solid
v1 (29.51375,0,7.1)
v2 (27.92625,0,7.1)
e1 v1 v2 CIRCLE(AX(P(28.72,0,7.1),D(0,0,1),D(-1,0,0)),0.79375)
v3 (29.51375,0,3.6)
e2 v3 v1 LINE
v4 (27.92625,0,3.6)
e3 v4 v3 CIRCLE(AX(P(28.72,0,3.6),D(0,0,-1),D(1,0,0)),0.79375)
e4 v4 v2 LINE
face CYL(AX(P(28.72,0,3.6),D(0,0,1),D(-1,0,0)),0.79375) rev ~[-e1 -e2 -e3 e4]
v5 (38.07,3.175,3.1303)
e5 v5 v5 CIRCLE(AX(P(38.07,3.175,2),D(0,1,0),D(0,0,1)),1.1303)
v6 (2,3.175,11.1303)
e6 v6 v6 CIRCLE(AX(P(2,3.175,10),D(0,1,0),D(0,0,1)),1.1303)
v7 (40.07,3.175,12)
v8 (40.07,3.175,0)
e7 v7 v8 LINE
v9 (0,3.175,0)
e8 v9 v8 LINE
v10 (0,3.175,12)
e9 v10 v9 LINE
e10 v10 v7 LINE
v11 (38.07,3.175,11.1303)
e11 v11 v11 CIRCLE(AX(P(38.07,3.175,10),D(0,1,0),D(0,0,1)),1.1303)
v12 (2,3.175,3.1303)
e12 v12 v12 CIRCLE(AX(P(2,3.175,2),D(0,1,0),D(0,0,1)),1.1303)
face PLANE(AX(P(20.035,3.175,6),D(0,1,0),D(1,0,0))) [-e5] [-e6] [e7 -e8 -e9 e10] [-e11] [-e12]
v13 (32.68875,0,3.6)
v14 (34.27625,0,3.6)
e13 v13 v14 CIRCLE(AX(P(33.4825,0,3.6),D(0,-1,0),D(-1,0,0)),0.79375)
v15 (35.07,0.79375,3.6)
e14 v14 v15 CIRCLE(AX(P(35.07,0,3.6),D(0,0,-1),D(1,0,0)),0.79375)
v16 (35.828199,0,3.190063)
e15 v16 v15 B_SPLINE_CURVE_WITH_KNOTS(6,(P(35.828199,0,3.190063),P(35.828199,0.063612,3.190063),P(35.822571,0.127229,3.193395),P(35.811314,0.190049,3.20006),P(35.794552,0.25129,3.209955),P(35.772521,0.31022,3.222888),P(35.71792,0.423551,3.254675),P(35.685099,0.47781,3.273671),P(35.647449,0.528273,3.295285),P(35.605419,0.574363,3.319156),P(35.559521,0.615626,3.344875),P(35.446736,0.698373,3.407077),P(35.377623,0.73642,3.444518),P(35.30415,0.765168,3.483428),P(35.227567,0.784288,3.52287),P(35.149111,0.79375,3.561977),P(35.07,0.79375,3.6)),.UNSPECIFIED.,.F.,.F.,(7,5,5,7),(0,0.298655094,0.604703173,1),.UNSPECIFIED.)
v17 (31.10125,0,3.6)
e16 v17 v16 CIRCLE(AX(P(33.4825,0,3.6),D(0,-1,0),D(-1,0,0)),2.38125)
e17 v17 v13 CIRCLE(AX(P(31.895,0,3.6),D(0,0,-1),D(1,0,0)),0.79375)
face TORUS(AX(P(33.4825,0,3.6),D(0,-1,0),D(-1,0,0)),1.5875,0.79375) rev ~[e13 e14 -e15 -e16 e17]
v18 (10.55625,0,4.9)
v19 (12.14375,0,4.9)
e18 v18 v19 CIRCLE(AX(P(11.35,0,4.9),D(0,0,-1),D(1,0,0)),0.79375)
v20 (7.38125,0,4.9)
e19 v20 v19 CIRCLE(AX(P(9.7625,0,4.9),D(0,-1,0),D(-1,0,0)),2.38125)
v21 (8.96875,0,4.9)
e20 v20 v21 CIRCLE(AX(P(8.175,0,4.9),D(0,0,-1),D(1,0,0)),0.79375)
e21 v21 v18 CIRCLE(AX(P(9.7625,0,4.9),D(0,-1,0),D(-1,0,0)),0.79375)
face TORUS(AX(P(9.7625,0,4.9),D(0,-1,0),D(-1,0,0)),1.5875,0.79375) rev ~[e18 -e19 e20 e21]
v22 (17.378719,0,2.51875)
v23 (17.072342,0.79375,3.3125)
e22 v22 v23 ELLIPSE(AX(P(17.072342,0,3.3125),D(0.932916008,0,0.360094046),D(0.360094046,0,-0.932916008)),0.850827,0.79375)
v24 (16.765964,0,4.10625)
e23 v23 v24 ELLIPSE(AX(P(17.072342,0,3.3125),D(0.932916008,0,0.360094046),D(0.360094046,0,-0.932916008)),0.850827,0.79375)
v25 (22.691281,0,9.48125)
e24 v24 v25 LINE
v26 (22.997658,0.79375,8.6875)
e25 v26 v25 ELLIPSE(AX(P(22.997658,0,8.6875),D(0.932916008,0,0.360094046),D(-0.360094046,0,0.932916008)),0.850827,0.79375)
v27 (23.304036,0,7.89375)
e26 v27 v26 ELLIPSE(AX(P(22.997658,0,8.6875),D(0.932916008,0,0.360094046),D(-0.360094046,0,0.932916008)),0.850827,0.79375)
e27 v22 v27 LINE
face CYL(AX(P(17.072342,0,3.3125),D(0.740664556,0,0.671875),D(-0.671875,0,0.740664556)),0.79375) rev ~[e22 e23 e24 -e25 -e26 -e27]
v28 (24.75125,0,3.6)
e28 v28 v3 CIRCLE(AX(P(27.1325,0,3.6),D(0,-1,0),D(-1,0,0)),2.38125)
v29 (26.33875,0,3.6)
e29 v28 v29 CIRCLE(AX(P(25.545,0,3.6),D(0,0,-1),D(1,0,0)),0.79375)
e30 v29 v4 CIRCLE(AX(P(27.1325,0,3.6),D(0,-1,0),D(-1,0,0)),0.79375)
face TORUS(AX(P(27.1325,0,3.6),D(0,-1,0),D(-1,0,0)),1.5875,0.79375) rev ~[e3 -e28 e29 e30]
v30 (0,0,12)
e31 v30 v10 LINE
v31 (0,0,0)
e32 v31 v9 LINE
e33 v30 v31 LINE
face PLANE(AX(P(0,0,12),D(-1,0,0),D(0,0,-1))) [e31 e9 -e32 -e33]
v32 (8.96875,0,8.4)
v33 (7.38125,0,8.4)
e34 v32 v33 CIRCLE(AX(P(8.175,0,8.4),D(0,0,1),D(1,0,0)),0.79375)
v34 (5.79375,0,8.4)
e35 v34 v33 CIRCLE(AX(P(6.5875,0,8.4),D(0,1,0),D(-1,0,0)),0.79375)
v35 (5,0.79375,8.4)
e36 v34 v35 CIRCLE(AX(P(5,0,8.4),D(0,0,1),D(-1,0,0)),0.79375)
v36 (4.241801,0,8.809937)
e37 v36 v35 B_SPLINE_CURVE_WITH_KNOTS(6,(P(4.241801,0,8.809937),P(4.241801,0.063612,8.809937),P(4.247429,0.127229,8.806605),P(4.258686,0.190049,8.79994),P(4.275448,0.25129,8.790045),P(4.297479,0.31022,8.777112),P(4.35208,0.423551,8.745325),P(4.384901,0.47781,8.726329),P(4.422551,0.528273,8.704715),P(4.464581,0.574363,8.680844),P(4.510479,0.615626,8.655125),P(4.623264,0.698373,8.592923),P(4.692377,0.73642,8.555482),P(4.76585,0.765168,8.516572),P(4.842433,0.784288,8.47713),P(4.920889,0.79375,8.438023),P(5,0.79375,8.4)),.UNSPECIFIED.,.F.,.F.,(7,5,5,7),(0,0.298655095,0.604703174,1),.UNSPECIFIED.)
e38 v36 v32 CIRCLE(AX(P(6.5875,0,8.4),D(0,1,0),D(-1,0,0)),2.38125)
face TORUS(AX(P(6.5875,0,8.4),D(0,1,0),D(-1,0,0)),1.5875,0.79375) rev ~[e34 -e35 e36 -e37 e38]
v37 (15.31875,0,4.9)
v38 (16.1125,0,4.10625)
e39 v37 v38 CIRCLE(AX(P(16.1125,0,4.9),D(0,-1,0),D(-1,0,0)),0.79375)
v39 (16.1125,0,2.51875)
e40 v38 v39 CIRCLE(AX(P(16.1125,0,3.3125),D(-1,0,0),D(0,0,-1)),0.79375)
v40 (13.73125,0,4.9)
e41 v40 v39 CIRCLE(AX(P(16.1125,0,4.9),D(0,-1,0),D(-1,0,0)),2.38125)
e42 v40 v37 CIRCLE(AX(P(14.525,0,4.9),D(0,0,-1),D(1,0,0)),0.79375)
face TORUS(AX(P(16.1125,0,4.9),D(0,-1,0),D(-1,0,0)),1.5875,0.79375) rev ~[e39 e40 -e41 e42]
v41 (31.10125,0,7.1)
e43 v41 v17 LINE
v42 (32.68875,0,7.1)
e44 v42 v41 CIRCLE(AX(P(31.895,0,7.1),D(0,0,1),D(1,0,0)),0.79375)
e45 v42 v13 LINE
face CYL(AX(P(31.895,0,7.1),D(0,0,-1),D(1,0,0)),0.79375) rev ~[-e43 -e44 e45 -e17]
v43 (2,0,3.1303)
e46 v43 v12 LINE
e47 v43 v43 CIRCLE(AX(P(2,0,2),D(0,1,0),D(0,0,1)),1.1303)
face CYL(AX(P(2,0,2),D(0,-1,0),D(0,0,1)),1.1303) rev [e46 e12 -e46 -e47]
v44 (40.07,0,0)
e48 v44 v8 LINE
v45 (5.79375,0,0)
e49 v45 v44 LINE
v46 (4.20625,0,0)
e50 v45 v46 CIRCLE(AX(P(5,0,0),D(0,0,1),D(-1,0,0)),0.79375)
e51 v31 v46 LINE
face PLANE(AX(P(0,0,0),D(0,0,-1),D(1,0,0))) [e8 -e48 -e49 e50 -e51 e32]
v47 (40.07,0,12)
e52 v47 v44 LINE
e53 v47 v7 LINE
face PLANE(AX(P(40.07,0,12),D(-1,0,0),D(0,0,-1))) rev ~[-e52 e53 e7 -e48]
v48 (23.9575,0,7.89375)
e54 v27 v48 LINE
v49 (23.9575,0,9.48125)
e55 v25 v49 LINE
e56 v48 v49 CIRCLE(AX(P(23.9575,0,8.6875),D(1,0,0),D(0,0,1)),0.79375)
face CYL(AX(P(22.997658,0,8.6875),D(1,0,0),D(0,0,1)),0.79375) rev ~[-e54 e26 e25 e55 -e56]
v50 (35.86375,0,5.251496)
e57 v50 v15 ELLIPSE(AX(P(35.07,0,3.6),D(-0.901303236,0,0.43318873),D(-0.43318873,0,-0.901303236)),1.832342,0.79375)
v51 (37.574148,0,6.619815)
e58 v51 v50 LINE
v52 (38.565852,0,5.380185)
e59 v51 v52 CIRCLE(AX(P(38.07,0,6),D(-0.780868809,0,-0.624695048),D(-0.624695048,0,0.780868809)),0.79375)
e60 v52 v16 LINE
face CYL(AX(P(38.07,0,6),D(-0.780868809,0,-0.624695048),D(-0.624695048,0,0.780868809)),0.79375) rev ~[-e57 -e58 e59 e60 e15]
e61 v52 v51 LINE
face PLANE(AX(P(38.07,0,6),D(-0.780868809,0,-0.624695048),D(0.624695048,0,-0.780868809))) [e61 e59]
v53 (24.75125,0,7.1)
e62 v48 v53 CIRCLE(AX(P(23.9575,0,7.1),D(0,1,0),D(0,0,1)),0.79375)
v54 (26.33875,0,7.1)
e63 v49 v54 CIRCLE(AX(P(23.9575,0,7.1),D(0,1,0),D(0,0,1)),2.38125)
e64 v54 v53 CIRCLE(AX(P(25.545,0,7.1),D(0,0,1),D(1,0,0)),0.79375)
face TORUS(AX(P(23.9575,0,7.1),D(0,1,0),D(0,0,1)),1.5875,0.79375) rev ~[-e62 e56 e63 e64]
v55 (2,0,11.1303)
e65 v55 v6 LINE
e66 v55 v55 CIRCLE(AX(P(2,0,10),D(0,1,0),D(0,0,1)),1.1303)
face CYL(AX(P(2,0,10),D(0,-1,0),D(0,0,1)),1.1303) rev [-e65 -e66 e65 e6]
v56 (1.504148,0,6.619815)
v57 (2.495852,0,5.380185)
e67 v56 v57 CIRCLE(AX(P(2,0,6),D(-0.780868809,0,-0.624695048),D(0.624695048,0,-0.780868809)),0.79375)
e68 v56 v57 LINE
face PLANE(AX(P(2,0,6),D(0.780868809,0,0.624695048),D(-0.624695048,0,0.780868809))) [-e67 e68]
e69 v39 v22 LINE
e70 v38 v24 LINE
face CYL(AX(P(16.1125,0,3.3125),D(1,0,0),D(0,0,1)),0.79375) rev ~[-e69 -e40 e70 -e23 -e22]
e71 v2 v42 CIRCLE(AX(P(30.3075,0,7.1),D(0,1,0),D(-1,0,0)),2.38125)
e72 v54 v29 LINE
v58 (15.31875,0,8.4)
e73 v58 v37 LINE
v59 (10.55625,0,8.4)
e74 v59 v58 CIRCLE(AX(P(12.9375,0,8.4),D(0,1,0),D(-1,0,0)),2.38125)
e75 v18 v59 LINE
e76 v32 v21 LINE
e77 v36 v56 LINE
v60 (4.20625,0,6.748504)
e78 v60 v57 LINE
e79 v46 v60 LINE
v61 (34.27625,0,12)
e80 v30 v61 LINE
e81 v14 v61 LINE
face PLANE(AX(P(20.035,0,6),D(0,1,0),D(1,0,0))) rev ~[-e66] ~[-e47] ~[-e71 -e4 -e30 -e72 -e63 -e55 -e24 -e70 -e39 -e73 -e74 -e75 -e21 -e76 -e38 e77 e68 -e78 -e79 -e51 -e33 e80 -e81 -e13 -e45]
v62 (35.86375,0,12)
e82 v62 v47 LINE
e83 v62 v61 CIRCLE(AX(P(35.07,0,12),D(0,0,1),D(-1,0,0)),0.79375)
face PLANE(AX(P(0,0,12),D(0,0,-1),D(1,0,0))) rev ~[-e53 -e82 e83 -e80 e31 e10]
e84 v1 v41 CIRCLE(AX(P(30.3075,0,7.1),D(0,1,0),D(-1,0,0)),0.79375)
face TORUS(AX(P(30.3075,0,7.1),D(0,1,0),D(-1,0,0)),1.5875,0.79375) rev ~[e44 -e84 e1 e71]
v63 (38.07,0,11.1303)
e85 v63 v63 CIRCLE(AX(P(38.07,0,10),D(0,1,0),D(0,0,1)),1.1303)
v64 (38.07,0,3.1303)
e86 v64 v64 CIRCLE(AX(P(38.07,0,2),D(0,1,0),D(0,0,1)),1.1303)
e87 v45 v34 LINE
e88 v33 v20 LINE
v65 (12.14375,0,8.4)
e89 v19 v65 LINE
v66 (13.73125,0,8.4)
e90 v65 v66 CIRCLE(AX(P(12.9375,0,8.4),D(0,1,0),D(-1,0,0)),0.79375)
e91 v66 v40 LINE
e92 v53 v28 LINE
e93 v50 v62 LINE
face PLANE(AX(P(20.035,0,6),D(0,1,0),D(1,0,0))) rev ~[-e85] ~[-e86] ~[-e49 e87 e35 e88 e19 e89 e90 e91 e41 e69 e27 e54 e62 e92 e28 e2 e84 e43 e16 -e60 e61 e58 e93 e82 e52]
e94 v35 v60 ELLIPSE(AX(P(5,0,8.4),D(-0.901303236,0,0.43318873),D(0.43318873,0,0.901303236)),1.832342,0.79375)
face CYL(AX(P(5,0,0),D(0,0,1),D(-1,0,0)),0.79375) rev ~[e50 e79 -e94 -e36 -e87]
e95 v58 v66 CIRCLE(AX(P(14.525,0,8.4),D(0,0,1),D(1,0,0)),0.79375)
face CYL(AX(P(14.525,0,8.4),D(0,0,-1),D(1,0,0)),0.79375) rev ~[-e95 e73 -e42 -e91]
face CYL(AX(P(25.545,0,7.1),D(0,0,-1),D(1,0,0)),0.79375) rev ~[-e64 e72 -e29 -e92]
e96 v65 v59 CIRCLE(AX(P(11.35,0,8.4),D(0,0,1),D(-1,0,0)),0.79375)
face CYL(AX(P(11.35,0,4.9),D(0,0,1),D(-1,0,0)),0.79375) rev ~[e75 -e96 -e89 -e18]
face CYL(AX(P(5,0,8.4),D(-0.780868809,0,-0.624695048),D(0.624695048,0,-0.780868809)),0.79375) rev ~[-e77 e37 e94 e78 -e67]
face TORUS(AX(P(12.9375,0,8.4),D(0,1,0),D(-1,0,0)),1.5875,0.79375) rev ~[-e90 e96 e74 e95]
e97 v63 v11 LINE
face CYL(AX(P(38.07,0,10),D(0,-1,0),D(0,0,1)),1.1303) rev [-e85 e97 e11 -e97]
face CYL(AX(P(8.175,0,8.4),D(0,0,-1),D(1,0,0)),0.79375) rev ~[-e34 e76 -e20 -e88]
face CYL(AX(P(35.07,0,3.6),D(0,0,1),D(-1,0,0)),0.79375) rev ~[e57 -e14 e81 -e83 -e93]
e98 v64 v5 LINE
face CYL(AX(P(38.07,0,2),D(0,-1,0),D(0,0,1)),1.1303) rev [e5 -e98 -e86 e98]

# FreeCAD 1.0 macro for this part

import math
import FreeCAD as App
import Part
import Sketcher
Q = App.Units.Quantity

doc = App.newDocument("Part")
body = doc.addObject("PartDesign::Body", "Body")

sketch1 = body.newObject("Sketcher::SketchObject", "Sketch")
sketch1.AttachmentSupport = (doc.getObject("XZ_Plane"), [""])
sketch1.MapMode = "FlatFace"
sketch1.addGeometry(Part.LineSegment(App.Vector(0, 0, 0), App.Vector(0, 12, 0)), False)
sketch1.addGeometry(Part.LineSegment(App.Vector(0, 12, 0), App.Vector(40.1, 12, 0)), False)
sketch1.addGeometry(Part.LineSegment(App.Vector(40.1, 12, 0), App.Vector(40.1, 0, 0)), False)
sketch1.addGeometry(Part.LineSegment(App.Vector(40.1, 0, 0), App.Vector(0, 0, 0)), False)
sketch1.addGeometry(Part.Circle(App.Vector(2, 10, 0), App.Vector(0, 0, 1), 1.1), False)
sketch1.addGeometry(Part.Circle(App.Vector(38.1, 10, 0), App.Vector(0, 0, 1), 1.1), False)
sketch1.addGeometry(Part.Circle(App.Vector(2, 2, 0), App.Vector(0, 0, 1), 1.1), False)
sketch1.addGeometry(Part.Circle(App.Vector(38.1, 2, 0), App.Vector(0, 0, 1), 1.1), False)
sketch1.addConstraint(Sketcher.Constraint("Coincident", 0, 2, 1, 1))
sketch1.addConstraint(Sketcher.Constraint("Coincident", 1, 2, 2, 1))
sketch1.addConstraint(Sketcher.Constraint("Coincident", 2, 2, 3, 1))
sketch1.addConstraint(Sketcher.Constraint("Coincident", 3, 2, 0, 1))
sketch1.addConstraint(Sketcher.Constraint("Vertical", 0))
sketch1.addConstraint(Sketcher.Constraint("Horizontal", 1))
sketch1.addConstraint(Sketcher.Constraint("Vertical", 2))
sketch1.addConstraint(Sketcher.Constraint("Horizontal", 3))
sketch1.addConstraint(Sketcher.Constraint("Coincident", 3, 2, -1, 1))
sketch1.addConstraint(Sketcher.Constraint("Equal", 4, 5))
sketch1.addConstraint(Sketcher.Constraint("Equal", 5, 6))
sketch1.addConstraint(Sketcher.Constraint("Equal", 6, 7))
sketch1.addConstraint(Sketcher.Constraint("Horizontal", 4, 3, 5, 3))
sketch1.addConstraint(Sketcher.Constraint("Horizontal", 6, 3, 7, 3))
sketch1.addConstraint(Sketcher.Constraint("Vertical", 4, 3, 6, 3))
sketch1.addConstraint(Sketcher.Constraint("Vertical", 5, 3, 7, 3))
sketch1.addConstraint(Sketcher.Constraint("DistanceY", 0, 1, 0, 2, Q("12 mm")))
sketch1.addConstraint(Sketcher.Constraint("DistanceX", -1, 1, 4, 3, Q("2 mm")))
sketch1.addConstraint(Sketcher.Constraint("DistanceY", -1, 1, 4, 3, Q("10 mm")))
sketch1.addConstraint(Sketcher.Constraint("DistanceY", -1, 1, 6, 3, Q("2 mm")))
sketch1.addConstraint(Sketcher.Constraint("DistanceX", 5, 3, 1, 2, Q("2 mm")))
sketch1.addConstraint(Sketcher.Constraint("Diameter", 4, Q("2.2606 mm")))
sketch1.addConstraint(Sketcher.Constraint("DistanceX", 1, 1, 1, 2, Q("40.07 mm")))
pad1 = body.newObject("PartDesign::Pad", "Pad")
pad1.Profile = sketch1
pad1.Length = 3.175
pad1.Reversed = True

sketch2 = body.newObject("Sketcher::SketchObject", "Sketch001")
sketch2.AttachmentSupport = (doc.getObject("XY_Plane"), [""])
sketch2.MapMode = "FlatFace"
sketch2.addGeometry(Part.Circle(App.Vector(5, 0, 0), App.Vector(0, 0, 1), 0.8), False)
sketch2.addConstraint(Sketcher.Constraint("PointOnObject", 0, 3, -1))
sketch2.addConstraint(Sketcher.Constraint("DistanceX", -1, 1, 0, 3, Q("5 mm")))
sketch2.addConstraint(Sketcher.Constraint("Diameter", 0, Q("1.5875 mm")))

sketch3 = body.newObject("Sketcher::SketchObject", "Sketch002")
sketch3.AttachmentSupport = (doc.getObject("XZ_Plane"), [""])
sketch3.MapMode = "FlatFace"
sketch3.addGeometry(Part.LineSegment(App.Vector(5, 0, 0), App.Vector(5, 8.4, 0)), False)
sketch3.addGeometry(Part.ArcOfCircle(Part.Circle(App.Vector(6.6, 8.4, 0), App.Vector(0, 0, 1), 1.6), math.radians(0), math.radians(180)), False)
sketch3.addGeometry(Part.LineSegment(App.Vector(8.2, 8.4, 0), App.Vector(8.2, 4.9, 0)), False)
sketch3.addGeometry(Part.ArcOfCircle(Part.Circle(App.Vector(9.8, 4.9, 0), App.Vector(0, 0, 1), 1.6), math.radians(180), math.radians(360)), False)
sketch3.addGeometry(Part.LineSegment(App.Vector(11.3, 4.9, 0), App.Vector(11.3, 8.4, 0)), False)
sketch3.addGeometry(Part.ArcOfCircle(Part.Circle(App.Vector(12.9, 8.4, 0), App.Vector(0, 0, 1), 1.6), math.radians(0), math.radians(180)), False)
sketch3.addGeometry(Part.LineSegment(App.Vector(14.5, 8.4, 0), App.Vector(14.5, 4.9, 0)), False)
sketch3.addGeometry(Part.ArcOfCircle(Part.Circle(App.Vector(16.1, 4.9, 0), App.Vector(0, 0, 1), 1.6), math.radians(180), math.radians(270)), False)
sketch3.addGeometry(Part.LineSegment(App.Vector(16.1, 3.3, 0), App.Vector(17.1, 3.3, 0)), False)
sketch3.addGeometry(Part.LineSegment(App.Vector(17.1, 3.3, 0), App.Vector(23, 8.7, 0)), False)
sketch3.addGeometry(Part.LineSegment(App.Vector(23, 8.7, 0), App.Vector(24, 8.7, 0)), False)
sketch3.addGeometry(Part.ArcOfCircle(Part.Circle(App.Vector(24, 7.1, 0), App.Vector(0, 0, 1), 1.6), math.radians(0), math.radians(90)), False)
sketch3.addGeometry(Part.LineSegment(App.Vector(25.5, 7.1, 0), App.Vector(25.5, 3.6, 0)), False)
sketch3.addGeometry(Part.ArcOfCircle(Part.Circle(App.Vector(27.1, 3.6, 0), App.Vector(0, 0, 1), 1.6), math.radians(180), math.radians(360)), False)
sketch3.addGeometry(Part.LineSegment(App.Vector(28.7, 3.6, 0), App.Vector(28.7, 7.1, 0)), False)
sketch3.addGeometry(Part.ArcOfCircle(Part.Circle(App.Vector(30.3, 7.1, 0), App.Vector(0, 0, 1), 1.6), math.radians(0), math.radians(180)), False)
sketch3.addGeometry(Part.LineSegment(App.Vector(31.9, 7.1, 0), App.Vector(31.9, 3.6, 0)), False)
sketch3.addGeometry(Part.ArcOfCircle(Part.Circle(App.Vector(33.5, 3.6, 0), App.Vector(0, 0, 1), 1.6), math.radians(180), math.radians(360)), False)
sketch3.addGeometry(Part.LineSegment(App.Vector(35.1, 3.6, 0), App.Vector(35.1, 12, 0)), False)
sketch3.addConstraint(Sketcher.Constraint("Tangent", 0, 2, 1, 2))
sketch3.addConstraint(Sketcher.Constraint("Tangent", 1, 1, 2, 1))
sketch3.addConstraint(Sketcher.Constraint("Tangent", 2, 2, 3, 1))
sketch3.addConstraint(Sketcher.Constraint("Tangent", 3, 2, 4, 1))
sketch3.addConstraint(Sketcher.Constraint("Tangent", 4, 2, 5, 2))
sketch3.addConstraint(Sketcher.Constraint("Tangent", 5, 1, 6, 1))
sketch3.addConstraint(Sketcher.Constraint("Tangent", 6, 2, 7, 1))
sketch3.addConstraint(Sketcher.Constraint("Tangent", 7, 2, 8, 1))
sketch3.addConstraint(Sketcher.Constraint("Coincident", 8, 2, 9, 1))
sketch3.addConstraint(Sketcher.Constraint("Coincident", 9, 2, 10, 1))
sketch3.addConstraint(Sketcher.Constraint("Tangent", 10, 2, 11, 2))
sketch3.addConstraint(Sketcher.Constraint("Tangent", 11, 1, 12, 1))
sketch3.addConstraint(Sketcher.Constraint("Tangent", 12, 2, 13, 1))
sketch3.addConstraint(Sketcher.Constraint("Tangent", 13, 2, 14, 1))
sketch3.addConstraint(Sketcher.Constraint("Tangent", 14, 2, 15, 2))
sketch3.addConstraint(Sketcher.Constraint("Tangent", 15, 1, 16, 1))
sketch3.addConstraint(Sketcher.Constraint("Tangent", 16, 2, 17, 1))
sketch3.addConstraint(Sketcher.Constraint("Tangent", 17, 2, 18, 1))
sketch3.addConstraint(Sketcher.Constraint("Vertical", 0))
sketch3.addConstraint(Sketcher.Constraint("Vertical", 2))
sketch3.addConstraint(Sketcher.Constraint("Vertical", 4))
sketch3.addConstraint(Sketcher.Constraint("Vertical", 6))
sketch3.addConstraint(Sketcher.Constraint("Horizontal", 8))
sketch3.addConstraint(Sketcher.Constraint("Horizontal", 10))
sketch3.addConstraint(Sketcher.Constraint("Vertical", 12))
sketch3.addConstraint(Sketcher.Constraint("Vertical", 14))
sketch3.addConstraint(Sketcher.Constraint("Vertical", 16))
sketch3.addConstraint(Sketcher.Constraint("Vertical", 18))
sketch3.addConstraint(Sketcher.Constraint("Equal", 1, 3))
sketch3.addConstraint(Sketcher.Constraint("Equal", 3, 5))
sketch3.addConstraint(Sketcher.Constraint("Equal", 5, 7))
sketch3.addConstraint(Sketcher.Constraint("Equal", 7, 11))
sketch3.addConstraint(Sketcher.Constraint("Equal", 11, 13))
sketch3.addConstraint(Sketcher.Constraint("Equal", 13, 15))
sketch3.addConstraint(Sketcher.Constraint("Equal", 15, 17))
sketch3.addConstraint(Sketcher.Constraint("PointOnObject", 0, 1, -1))
sketch3.addConstraint(Sketcher.Constraint("Horizontal", 1, 3, 5, 3))
sketch3.addConstraint(Sketcher.Constraint("Horizontal", 3, 3, 7, 3))
sketch3.addConstraint(Sketcher.Constraint("Horizontal", 11, 3, 15, 3))
sketch3.addConstraint(Sketcher.Constraint("Horizontal", 13, 3, 17, 3))
sketch3.addConstraint(Sketcher.Constraint("Equal", 8, 10))
sketch3.addConstraint(Sketcher.Constraint("Equal", 6, 12))
sketch3.addConstraint(Sketcher.Constraint("Equal", 0, 18))
sketch3.addConstraint(Sketcher.Constraint("Distance", 9, Q("8 mm")))
sketch3.addConstraint(Sketcher.Constraint("DistanceY", 0, 1, 0, 2, Q("8.4 mm")))
sketch3.addConstraint(Sketcher.Constraint("DistanceY", 2, 2, 2, 1, Q("3.5 mm")))
sketch3.addConstraint(Sketcher.Constraint("DistanceX", -1, 1, 0, 1, Q("5 mm")))
sketch3.addConstraint(Sketcher.Constraint("DistanceY", -1, 1, 18, 2, Q("12 mm")))
sketch3.addConstraint(Sketcher.Constraint("Radius", 1, Q("1.5875 mm")))
sketch3.addConstraint(Sketcher.Constraint("DistanceX", -1, 1, 13, 2, Q("28.72 mm")))
doc.recompute()

subtractivepipe = body.newObject("PartDesign::SubtractivePipe", "SubtractivePipe")
subtractivepipe.Profile = sketch2
subtractivepipe.Spine = (sketch3, ["Edge1", "Edge2", "Edge3", "Edge4", "Edge5", "Edge6", "Edge7", "Edge8", "Edge9", "Edge10", "Edge11", "Edge12", "Edge13", "Edge14", "Edge15", "Edge16", "Edge17", "Edge18", "Edge19"])
subtractivepipe.Transition = "Right corner"

sketch4 = body.newObject("Sketcher::SketchObject", "Sketch003")
sketch4.AttachmentSupport = (doc.getObject("XY_Plane"), [""])
sketch4.MapMode = "FlatFace"
sketch4.AttachmentOffset = App.Placement(App.Vector(0, 0, 12), App.Rotation())
sketch4.addGeometry(Part.Circle(App.Vector(35.1, 0, 0), App.Vector(0, 0, 1), 0.8), False)
sketch4.addConstraint(Sketcher.Constraint("PointOnObject", 0, 3, -1))
sketch4.addConstraint(Sketcher.Constraint("Diameter", 0, Q("1.5875 mm")))
sketch4.addConstraint(Sketcher.Constraint("DistanceX", -1, 1, 0, 3, Q("35.07 mm")))

sketch5 = body.newObject("Sketcher::SketchObject", "Sketch004")
sketch5.AttachmentSupport = (doc.getObject("XZ_Plane"), [""])
sketch5.MapMode = "FlatFace"
sketch5.addGeometry(Part.LineSegment(App.Vector(38.1, 6, 0), App.Vector(35.1, 3.6, 0)), False)
sketch5.addGeometry(Part.LineSegment(App.Vector(35.1, 3.6, 0), App.Vector(35.1, 12, 0)), False)
sketch5.addConstraint(Sketcher.Constraint("Coincident", 0, 2, 1, 1))
sketch5.addConstraint(Sketcher.Constraint("Vertical", 1))
sketch5.addConstraint(Sketcher.Constraint("DistanceY", 1, 1, 1, 2, Q("8.4 mm")))
sketch5.addConstraint(Sketcher.Constraint("DistanceY", -1, 1, 0, 1, Q("6 mm")))
sketch5.addConstraint(Sketcher.Constraint("DistanceY", -1, 1, 1, 2, Q("12 mm")))
sketch5.addConstraint(Sketcher.Constraint("DistanceX", 0, 2, 0, 1, Q("3 mm")))
sketch5.addConstraint(Sketcher.Constraint("DistanceX", -1, 1, 0, 1, Q("38.07 mm")))
doc.recompute()

subtractivepipe2 = body.newObject("PartDesign::SubtractivePipe", "SubtractivePipe001")
subtractivepipe2.Profile = sketch4
subtractivepipe2.Spine = (sketch5, ["Edge1", "Edge2"])
subtractivepipe2.Transition = "Right corner"

sketch6 = body.newObject("Sketcher::SketchObject", "Sketch005")
sketch6.AttachmentSupport = (doc.getObject("XY_Plane"), [""])
sketch6.MapMode = "FlatFace"
sketch6.addGeometry(Part.Circle(App.Vector(5, 0, 0), App.Vector(0, 0, 1), 0.8), False)
sketch6.addConstraint(Sketcher.Constraint("PointOnObject", 0, 3, -1))
sketch6.addConstraint(Sketcher.Constraint("DistanceX", -1, 1, 0, 3, Q("5 mm")))
sketch6.addConstraint(Sketcher.Constraint("Diameter", 0, Q("1.5875 mm")))

sketch7 = body.newObject("Sketcher::SketchObject", "Sketch006")
sketch7.AttachmentSupport = (doc.getObject("XZ_Plane"), [""])
sketch7.MapMode = "FlatFace"
sketch7.addGeometry(Part.LineSegment(App.Vector(5, 0, 0), App.Vector(5, 8.4, 0)), False)
sketch7.addGeometry(Part.LineSegment(App.Vector(5, 8.4, 0), App.Vector(2, 6, 0)), False)
sketch7.addConstraint(Sketcher.Constraint("Coincident", 0, 2, 1, 1))
sketch7.addConstraint(Sketcher.Constraint("Vertical", 0))
sketch7.addConstraint(Sketcher.Constraint("PointOnObject", 0, 1, -1))
sketch7.addConstraint(Sketcher.Constraint("DistanceY", 0, 1, 0, 2, Q("8.4 mm")))
sketch7.addConstraint(Sketcher.Constraint("DistanceX", -1, 1, 0, 1, Q("5 mm")))
sketch7.addConstraint(Sketcher.Constraint("DistanceX", -1, 1, 1, 2, Q("2 mm")))
sketch7.addConstraint(Sketcher.Constraint("DistanceY", -1, 1, 1, 2, Q("6 mm")))
doc.recompute()

subtractivepipe3 = body.newObject("PartDesign::SubtractivePipe", "SubtractivePipe002")
subtractivepipe3.Profile = sketch6
subtractivepipe3.Spine = (sketch7, ["Edge1", "Edge2"])
subtractivepipe3.Transition = "Right corner"

doc.recompute()
